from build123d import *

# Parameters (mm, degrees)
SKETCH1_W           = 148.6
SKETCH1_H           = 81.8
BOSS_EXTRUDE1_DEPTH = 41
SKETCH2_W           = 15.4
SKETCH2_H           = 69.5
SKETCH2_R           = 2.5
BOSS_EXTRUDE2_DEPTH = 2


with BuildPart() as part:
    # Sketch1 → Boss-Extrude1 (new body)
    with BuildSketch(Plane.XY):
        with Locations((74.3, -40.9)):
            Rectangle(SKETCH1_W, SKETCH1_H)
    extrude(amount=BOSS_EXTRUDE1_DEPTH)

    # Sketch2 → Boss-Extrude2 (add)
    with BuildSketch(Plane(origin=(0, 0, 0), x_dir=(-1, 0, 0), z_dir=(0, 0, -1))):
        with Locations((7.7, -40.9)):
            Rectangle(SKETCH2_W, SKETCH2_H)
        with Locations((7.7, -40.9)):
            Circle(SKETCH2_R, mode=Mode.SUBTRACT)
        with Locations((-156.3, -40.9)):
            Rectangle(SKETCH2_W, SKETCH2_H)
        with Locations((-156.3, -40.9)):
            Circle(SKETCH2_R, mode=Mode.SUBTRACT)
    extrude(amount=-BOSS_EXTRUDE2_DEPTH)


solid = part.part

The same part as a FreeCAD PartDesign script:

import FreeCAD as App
import Part
import Sketcher
Q = App.Units.Quantity

doc = App.newDocument("Part")
body = doc.addObject("PartDesign::Body", "Body")

sketch1 = body.newObject("Sketcher::SketchObject", "Sketch")
sketch1.AttachmentSupport = (doc.getObject("XY_Plane"), [""])
sketch1.MapMode = "FlatFace"
sketch1.addGeometry([
    Part.LineSegment(App.Vector(0, 0, 0), App.Vector(0, -81.8, 0)),
    Part.LineSegment(App.Vector(0, -81.8, 0), App.Vector(148.6, -81.8, 0)),
    Part.LineSegment(App.Vector(148.6, -81.8, 0), App.Vector(148.6, 0, 0)),
    Part.LineSegment(App.Vector(148.6, 0, 0), App.Vector(0, 0, 0)),
], False)
sketch1.addConstraint([
    Sketcher.Constraint("Coincident", 0, 2, 1, 1),
    Sketcher.Constraint("Coincident", 1, 2, 2, 1),
    Sketcher.Constraint("Coincident", 2, 2, 3, 1),
    Sketcher.Constraint("Coincident", 3, 2, 0, 1),
    Sketcher.Constraint("Vertical", 0),
    Sketcher.Constraint("Horizontal", 1),
    Sketcher.Constraint("Vertical", 2),
    Sketcher.Constraint("Horizontal", 3),
    Sketcher.Constraint("Coincident", 3, 2, -1, 1),
    Sketcher.Constraint("DistanceX", 1, 1, 1, 2, Q("148.6 mm")),
    Sketcher.Constraint("DistanceY", 0, 2, 0, 1, Q("81.8 mm")),
])
pad1 = body.newObject("PartDesign::Pad", "Pad")
pad1.Profile = sketch1
pad1.Length = 41

sketch2 = body.newObject("Sketcher::SketchObject", "Sketch001")
sketch2.AttachmentSupport = (doc.getObject("XY_Plane"), [""])
sketch2.MapMode = "FlatFace"
sketch2.addGeometry([
    Part.LineSegment(App.Vector(0, -6.15, 0), App.Vector(0, -75.65, 0)),
    Part.LineSegment(App.Vector(0, -75.65, 0), App.Vector(-15.4, -75.65, 0)),
    Part.LineSegment(App.Vector(-15.4, -75.65, 0), App.Vector(-15.4, -6.15, 0)),
    Part.LineSegment(App.Vector(-15.4, -6.15, 0), App.Vector(0, -6.15, 0)),
    Part.Circle(App.Vector(-7.7, -40.9, 0), App.Vector(0, 0, 1), 2.5),
    Part.LineSegment(App.Vector(164, -6.15, 0), App.Vector(164, -75.65, 0)),
    Part.LineSegment(App.Vector(164, -75.65, 0), App.Vector(148.6, -75.65, 0)),
    Part.LineSegment(App.Vector(148.6, -75.65, 0), App.Vector(148.6, -6.15, 0)),
    Part.LineSegment(App.Vector(148.6, -6.15, 0), App.Vector(164, -6.15, 0)),
    Part.Circle(App.Vector(156.3, -40.9, 0), App.Vector(0, 0, 1), 2.5),
], False)
sketch2.addConstraint([
    Sketcher.Constraint("Coincident", 0, 2, 1, 1),
    Sketcher.Constraint("Coincident", 1, 2, 2, 1),
    Sketcher.Constraint("Coincident", 2, 2, 3, 1),
    Sketcher.Constraint("Coincident", 3, 2, 0, 1),
    Sketcher.Constraint("Coincident", 5, 2, 6, 1),
    Sketcher.Constraint("Coincident", 6, 2, 7, 1),
    Sketcher.Constraint("Coincident", 7, 2, 8, 1),
    Sketcher.Constraint("Coincident", 8, 2, 5, 1),
    Sketcher.Constraint("Vertical", 0),
    Sketcher.Constraint("Horizontal", 1),
    Sketcher.Constraint("Vertical", 2),
    Sketcher.Constraint("Horizontal", 3),
    Sketcher.Constraint("Vertical", 5),
    Sketcher.Constraint("Horizontal", 6),
    Sketcher.Constraint("Vertical", 7),
    Sketcher.Constraint("Horizontal", 8),
    Sketcher.Constraint("Equal", 4, 9),
    Sketcher.Constraint("PointOnObject", 0, 2, -2),
    Sketcher.Constraint("Horizontal", 4, 3, 9, 3),
    Sketcher.Constraint("Horizontal", 1, 2, 5, 2),
    Sketcher.Constraint("Horizontal", 3, 2, 7, 2),
    Sketcher.Constraint("Equal", 3, 6),
    Sketcher.Constraint("Diameter", 4, Q("5 mm")),
    Sketcher.Constraint("DistanceX", 1, 2, 1, 1, Q("15.4 mm")),
    Sketcher.Constraint("DistanceY", 0, 2, 0, 1, Q("69.5 mm")),
    Sketcher.Constraint("DistanceX", -1, 1, 5, 2, Q("164 mm")),
    Sketcher.Constraint("DistanceX", 4, 3, 9, 3, Q("164 mm")),
    Sketcher.Constraint("DistanceX", 4, 3, -1, 1, Q("7.7 mm")),
    Sketcher.Constraint("DistanceY", 4, 3, -1, 1, Q("40.9 mm")),
    Sketcher.Constraint("DistanceY", 0, 2, -1, 1, Q("75.65 mm")),
])
pad2 = body.newObject("PartDesign::Pad", "Pad001")
pad2.Profile = sketch2
pad2.Length = 2

doc.recompute()
